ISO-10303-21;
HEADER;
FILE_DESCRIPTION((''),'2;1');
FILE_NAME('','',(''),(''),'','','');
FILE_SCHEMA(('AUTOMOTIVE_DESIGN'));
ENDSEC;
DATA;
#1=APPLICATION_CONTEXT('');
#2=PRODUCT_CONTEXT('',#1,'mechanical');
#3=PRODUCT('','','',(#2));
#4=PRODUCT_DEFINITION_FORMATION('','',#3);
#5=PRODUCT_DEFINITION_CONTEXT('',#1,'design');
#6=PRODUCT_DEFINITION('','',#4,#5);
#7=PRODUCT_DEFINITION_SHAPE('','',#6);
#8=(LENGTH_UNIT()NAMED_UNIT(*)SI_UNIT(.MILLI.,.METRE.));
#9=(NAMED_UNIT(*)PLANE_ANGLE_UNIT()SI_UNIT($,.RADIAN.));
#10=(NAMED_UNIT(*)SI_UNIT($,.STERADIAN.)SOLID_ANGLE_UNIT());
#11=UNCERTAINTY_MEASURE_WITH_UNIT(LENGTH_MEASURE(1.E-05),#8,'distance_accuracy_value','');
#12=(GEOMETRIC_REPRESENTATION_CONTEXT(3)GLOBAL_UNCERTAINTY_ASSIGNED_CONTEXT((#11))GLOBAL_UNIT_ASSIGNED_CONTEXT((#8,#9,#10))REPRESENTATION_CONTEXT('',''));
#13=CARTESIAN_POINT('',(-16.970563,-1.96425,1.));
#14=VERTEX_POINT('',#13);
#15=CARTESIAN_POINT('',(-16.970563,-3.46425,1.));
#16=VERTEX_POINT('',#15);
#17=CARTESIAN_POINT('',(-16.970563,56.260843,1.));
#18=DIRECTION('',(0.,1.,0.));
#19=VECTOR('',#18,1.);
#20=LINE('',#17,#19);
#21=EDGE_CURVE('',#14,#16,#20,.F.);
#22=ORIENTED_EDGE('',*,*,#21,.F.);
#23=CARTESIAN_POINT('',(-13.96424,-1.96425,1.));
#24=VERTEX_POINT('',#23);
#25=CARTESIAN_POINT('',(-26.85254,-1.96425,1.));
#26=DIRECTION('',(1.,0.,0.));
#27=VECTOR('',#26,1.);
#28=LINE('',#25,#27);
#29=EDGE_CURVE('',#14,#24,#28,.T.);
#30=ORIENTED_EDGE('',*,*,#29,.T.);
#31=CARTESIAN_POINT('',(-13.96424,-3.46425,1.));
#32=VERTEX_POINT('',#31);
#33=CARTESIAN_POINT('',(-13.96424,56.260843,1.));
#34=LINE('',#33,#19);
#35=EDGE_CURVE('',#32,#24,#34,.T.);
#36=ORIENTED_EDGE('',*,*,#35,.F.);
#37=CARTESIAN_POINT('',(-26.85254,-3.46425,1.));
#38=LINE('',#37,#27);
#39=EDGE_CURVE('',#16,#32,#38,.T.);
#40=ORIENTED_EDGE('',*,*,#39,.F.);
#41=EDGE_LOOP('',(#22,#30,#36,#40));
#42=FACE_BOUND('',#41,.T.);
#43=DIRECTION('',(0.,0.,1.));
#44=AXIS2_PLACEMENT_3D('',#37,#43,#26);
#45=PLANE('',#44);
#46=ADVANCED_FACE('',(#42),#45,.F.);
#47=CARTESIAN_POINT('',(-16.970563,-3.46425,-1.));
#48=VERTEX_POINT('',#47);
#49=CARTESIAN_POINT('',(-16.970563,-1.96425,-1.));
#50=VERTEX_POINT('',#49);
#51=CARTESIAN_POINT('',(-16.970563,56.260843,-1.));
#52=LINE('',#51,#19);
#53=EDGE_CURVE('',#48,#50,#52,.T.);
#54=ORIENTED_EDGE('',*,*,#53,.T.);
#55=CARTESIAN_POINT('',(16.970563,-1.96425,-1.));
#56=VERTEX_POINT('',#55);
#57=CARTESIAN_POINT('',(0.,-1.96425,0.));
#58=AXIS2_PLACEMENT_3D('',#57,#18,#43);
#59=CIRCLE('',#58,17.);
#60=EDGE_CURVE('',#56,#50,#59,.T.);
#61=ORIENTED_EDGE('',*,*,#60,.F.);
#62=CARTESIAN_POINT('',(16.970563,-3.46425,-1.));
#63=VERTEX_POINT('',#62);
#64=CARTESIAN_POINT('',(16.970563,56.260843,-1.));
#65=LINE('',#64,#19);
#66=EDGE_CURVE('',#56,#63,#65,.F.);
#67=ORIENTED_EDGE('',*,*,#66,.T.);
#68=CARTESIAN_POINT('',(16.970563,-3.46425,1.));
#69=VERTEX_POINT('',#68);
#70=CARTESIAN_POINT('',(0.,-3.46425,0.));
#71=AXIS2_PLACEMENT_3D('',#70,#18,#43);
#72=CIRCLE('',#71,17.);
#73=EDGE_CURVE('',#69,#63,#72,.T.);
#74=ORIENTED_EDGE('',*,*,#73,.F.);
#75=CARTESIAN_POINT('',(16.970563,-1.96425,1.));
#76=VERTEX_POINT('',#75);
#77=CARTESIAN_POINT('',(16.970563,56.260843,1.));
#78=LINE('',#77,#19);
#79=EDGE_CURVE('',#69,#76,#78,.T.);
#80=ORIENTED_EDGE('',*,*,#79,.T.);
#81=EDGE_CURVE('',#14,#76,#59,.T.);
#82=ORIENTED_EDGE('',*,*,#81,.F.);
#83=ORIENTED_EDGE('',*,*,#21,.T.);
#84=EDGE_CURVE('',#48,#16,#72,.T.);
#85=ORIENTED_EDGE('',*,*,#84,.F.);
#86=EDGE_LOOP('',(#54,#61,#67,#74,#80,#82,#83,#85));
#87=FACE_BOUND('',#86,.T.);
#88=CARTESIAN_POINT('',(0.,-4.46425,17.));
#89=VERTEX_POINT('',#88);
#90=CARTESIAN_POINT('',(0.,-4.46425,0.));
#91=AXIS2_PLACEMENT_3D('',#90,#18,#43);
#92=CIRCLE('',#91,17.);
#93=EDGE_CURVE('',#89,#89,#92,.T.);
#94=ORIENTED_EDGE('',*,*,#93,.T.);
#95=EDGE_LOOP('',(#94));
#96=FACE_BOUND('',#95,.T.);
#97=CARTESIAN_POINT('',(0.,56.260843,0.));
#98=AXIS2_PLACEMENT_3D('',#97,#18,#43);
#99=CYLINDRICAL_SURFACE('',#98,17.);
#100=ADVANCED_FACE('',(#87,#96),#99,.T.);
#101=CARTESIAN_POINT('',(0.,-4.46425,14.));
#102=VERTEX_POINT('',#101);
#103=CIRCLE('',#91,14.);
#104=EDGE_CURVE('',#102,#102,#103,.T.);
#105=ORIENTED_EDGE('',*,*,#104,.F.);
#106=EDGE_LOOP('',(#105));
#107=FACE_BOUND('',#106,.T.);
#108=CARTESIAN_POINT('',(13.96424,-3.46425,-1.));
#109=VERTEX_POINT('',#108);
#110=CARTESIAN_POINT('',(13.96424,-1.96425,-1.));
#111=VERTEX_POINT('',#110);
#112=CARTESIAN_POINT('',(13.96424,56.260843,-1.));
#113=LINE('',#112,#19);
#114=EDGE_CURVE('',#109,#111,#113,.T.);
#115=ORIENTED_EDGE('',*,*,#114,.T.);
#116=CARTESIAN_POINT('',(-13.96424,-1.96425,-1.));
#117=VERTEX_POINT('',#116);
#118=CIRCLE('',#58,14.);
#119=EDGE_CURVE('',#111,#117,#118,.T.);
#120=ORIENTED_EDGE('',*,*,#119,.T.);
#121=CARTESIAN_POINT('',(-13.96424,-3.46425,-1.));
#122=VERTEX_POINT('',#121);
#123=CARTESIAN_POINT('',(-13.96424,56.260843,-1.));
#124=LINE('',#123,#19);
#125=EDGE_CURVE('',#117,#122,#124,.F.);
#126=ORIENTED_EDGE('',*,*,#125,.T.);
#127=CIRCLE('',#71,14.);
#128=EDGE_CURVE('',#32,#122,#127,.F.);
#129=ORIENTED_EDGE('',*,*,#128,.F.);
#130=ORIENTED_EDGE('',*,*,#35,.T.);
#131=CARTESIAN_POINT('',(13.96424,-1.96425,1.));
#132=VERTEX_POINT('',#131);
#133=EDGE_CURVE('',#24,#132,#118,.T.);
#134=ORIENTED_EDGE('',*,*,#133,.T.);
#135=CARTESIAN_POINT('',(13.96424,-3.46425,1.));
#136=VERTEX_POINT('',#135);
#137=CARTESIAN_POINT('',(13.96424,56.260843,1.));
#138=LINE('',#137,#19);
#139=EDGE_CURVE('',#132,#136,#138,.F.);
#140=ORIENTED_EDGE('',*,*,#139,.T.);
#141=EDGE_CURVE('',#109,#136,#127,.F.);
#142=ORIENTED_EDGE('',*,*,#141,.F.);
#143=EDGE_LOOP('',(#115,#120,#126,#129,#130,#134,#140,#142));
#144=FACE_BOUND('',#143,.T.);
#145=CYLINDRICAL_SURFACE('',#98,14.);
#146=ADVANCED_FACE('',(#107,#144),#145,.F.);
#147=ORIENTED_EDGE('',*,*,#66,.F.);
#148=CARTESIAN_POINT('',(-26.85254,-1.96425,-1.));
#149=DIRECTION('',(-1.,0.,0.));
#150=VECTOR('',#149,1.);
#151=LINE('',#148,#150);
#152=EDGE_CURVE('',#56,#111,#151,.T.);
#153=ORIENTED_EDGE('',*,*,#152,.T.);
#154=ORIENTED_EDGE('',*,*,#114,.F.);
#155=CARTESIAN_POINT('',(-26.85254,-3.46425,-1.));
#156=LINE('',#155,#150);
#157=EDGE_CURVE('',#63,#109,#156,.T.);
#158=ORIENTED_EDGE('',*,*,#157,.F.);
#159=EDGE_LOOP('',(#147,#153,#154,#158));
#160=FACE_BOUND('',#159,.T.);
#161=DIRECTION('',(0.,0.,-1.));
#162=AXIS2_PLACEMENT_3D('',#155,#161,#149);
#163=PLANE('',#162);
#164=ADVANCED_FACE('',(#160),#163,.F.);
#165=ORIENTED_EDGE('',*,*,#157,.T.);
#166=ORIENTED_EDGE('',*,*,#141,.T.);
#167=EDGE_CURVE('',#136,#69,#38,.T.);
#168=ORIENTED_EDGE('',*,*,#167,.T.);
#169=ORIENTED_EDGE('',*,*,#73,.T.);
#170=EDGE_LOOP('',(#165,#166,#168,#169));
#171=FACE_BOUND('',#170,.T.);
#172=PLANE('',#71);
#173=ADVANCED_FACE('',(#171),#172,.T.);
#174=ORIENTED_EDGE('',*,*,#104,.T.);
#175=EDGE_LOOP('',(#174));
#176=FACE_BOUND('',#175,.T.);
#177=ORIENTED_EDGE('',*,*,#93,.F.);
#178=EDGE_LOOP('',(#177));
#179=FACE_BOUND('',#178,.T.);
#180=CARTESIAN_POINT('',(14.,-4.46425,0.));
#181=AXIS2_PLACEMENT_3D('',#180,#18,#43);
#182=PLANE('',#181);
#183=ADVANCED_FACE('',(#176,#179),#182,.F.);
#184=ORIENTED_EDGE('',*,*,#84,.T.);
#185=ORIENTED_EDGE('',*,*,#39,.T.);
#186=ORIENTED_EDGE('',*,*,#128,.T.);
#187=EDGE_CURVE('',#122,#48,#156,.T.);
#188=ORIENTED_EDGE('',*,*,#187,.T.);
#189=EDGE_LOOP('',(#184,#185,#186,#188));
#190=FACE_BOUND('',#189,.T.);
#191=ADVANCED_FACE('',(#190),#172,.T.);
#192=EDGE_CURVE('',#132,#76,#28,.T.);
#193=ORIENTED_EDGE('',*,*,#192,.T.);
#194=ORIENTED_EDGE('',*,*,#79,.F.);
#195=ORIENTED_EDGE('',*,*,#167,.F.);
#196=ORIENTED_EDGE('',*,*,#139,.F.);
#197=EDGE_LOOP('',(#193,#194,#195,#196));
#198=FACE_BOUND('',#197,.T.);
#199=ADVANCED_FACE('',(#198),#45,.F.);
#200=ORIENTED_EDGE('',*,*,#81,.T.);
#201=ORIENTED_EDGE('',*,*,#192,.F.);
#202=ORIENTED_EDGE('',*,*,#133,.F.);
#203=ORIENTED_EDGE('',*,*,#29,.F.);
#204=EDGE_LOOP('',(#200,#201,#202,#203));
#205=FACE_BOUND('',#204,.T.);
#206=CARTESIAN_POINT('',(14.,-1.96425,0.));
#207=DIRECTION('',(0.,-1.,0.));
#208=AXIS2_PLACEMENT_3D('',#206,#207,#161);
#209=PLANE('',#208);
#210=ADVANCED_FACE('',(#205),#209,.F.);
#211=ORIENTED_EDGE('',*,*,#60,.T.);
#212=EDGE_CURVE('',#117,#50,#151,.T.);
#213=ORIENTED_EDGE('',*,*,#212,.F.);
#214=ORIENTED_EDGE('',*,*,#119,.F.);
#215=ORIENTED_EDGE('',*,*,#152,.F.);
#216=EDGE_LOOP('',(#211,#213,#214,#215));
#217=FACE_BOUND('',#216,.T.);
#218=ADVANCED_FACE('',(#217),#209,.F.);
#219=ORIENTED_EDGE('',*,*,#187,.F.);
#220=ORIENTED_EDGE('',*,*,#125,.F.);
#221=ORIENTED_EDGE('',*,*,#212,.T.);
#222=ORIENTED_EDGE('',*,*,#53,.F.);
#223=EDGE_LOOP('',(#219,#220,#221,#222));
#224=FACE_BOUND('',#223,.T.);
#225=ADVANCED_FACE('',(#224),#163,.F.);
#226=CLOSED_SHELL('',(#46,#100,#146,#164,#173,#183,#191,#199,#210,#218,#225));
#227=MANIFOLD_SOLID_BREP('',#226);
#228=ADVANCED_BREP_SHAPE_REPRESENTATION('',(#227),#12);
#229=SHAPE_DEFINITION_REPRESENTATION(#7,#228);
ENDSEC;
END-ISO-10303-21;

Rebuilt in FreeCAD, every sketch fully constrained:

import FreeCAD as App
import Part
import Sketcher
from FreeCAD import Vector
Q = App.Units.Quantity

doc = App.newDocument("Part")
body = doc.addObject("PartDesign::Body", "Body")

# Sketch on XY plane
sketch1 = doc.addObject("Sketcher::SketchObject", "Sketch")
body.addObject(sketch1)
sketch1.AttachmentSupport = (doc.XY_Plane, [""])
sketch1.MapMode = "FlatFace"
sketch1.addGeometry(Part.LineSegment(Vector(14, -2, 0), Vector(14, -4.5, 0)), False)
sketch1.addGeometry(Part.LineSegment(Vector(14, -4.5, 0), Vector(17, -4.5, 0)), False)
sketch1.addGeometry(Part.LineSegment(Vector(17, -4.5, 0), Vector(17, -2, 0)), False)
sketch1.addGeometry(Part.LineSegment(Vector(17, -2, 0), Vector(14, -2, 0)), False)
sketch1.addConstraint(Sketcher.Constraint("Coincident", 0, 2, 1, 1))
sketch1.addConstraint(Sketcher.Constraint("Coincident", 1, 2, 2, 1))
sketch1.addConstraint(Sketcher.Constraint("Coincident", 2, 2, 3, 1))
sketch1.addConstraint(Sketcher.Constraint("Coincident", 3, 2, 0, 1))
sketch1.addConstraint(Sketcher.Constraint("Vertical", 0))
sketch1.addConstraint(Sketcher.Constraint("Horizontal", 1))
sketch1.addConstraint(Sketcher.Constraint("Vertical", 2))
sketch1.addConstraint(Sketcher.Constraint("Horizontal", 3))
sketch1.addConstraint(Sketcher.Constraint("DistanceX", 1, 1, 1, 2, Q("3 mm")))
sketch1.addConstraint(Sketcher.Constraint("DistanceY", 0, 2, 0, 1, Q("2.5 mm")))
sketch1.addConstraint(Sketcher.Constraint("DistanceX", -1, 1, 0, 2, Q("14 mm")))
sketch1.addConstraint(Sketcher.Constraint("DistanceY", 0, 2, -1, 1, Q("4.46425 mm")))
revolution = doc.addObject("PartDesign::Revolution", "Revolution")
body.addObject(revolution)
revolution.Profile = sketch1
revolution.ReferenceAxis = (sketch1, ["V_Axis"])
revolution.Angle = 360

# Sketch on XZ plane
sketch2 = doc.addObject("Sketcher::SketchObject", "Sketch001")
body.addObject(sketch2)
sketch2.AttachmentSupport = (doc.XZ_Plane, [""])
sketch2.MapMode = "FlatFace"
sketch2.AttachmentOffset = App.Placement(Vector(0, 0, 1.96425), App.Rotation())
sketch2.addGeometry(Part.LineSegment(Vector(-26.9, -1, 0), Vector(-26.9, 1, 0)), False)
sketch2.addGeometry(Part.LineSegment(Vector(-26.9, 1, 0), Vector(26.9, 1, 0)), False)
sketch2.addGeometry(Part.LineSegment(Vector(26.9, 1, 0), Vector(26.9, -1, 0)), False)
sketch2.addGeometry(Part.LineSegment(Vector(26.9, -1, 0), Vector(-26.9, -1, 0)), False)
sketch2.addConstraint(Sketcher.Constraint("Coincident", 0, 2, 1, 1))
sketch2.addConstraint(Sketcher.Constraint("Coincident", 1, 2, 2, 1))
sketch2.addConstraint(Sketcher.Constraint("Coincident", 2, 2, 3, 1))
sketch2.addConstraint(Sketcher.Constraint("Coincident", 3, 2, 0, 1))
sketch2.addConstraint(Sketcher.Constraint("Vertical", 0))
sketch2.addConstraint(Sketcher.Constraint("Horizontal", 1))
sketch2.addConstraint(Sketcher.Constraint("Vertical", 2))
sketch2.addConstraint(Sketcher.Constraint("Horizontal", 3))
sketch2.addConstraint(Sketcher.Constraint("Symmetric", 0, 2, 2, 2, -1, 1))
sketch2.addConstraint(Sketcher.Constraint("DistanceY", 0, 1, 0, 2, Q("2 mm")))
sketch2.addConstraint(Sketcher.Constraint("DistanceX", 1, 1, 1, 2, Q("53.705081 mm")))
pocket1 = doc.addObject("PartDesign::Pocket", "Pocket")
body.addObject(pocket1)
pocket1.Profile = sketch2
pocket1.Length = 1.5
pocket1.Reversed = True

doc.recompute()
